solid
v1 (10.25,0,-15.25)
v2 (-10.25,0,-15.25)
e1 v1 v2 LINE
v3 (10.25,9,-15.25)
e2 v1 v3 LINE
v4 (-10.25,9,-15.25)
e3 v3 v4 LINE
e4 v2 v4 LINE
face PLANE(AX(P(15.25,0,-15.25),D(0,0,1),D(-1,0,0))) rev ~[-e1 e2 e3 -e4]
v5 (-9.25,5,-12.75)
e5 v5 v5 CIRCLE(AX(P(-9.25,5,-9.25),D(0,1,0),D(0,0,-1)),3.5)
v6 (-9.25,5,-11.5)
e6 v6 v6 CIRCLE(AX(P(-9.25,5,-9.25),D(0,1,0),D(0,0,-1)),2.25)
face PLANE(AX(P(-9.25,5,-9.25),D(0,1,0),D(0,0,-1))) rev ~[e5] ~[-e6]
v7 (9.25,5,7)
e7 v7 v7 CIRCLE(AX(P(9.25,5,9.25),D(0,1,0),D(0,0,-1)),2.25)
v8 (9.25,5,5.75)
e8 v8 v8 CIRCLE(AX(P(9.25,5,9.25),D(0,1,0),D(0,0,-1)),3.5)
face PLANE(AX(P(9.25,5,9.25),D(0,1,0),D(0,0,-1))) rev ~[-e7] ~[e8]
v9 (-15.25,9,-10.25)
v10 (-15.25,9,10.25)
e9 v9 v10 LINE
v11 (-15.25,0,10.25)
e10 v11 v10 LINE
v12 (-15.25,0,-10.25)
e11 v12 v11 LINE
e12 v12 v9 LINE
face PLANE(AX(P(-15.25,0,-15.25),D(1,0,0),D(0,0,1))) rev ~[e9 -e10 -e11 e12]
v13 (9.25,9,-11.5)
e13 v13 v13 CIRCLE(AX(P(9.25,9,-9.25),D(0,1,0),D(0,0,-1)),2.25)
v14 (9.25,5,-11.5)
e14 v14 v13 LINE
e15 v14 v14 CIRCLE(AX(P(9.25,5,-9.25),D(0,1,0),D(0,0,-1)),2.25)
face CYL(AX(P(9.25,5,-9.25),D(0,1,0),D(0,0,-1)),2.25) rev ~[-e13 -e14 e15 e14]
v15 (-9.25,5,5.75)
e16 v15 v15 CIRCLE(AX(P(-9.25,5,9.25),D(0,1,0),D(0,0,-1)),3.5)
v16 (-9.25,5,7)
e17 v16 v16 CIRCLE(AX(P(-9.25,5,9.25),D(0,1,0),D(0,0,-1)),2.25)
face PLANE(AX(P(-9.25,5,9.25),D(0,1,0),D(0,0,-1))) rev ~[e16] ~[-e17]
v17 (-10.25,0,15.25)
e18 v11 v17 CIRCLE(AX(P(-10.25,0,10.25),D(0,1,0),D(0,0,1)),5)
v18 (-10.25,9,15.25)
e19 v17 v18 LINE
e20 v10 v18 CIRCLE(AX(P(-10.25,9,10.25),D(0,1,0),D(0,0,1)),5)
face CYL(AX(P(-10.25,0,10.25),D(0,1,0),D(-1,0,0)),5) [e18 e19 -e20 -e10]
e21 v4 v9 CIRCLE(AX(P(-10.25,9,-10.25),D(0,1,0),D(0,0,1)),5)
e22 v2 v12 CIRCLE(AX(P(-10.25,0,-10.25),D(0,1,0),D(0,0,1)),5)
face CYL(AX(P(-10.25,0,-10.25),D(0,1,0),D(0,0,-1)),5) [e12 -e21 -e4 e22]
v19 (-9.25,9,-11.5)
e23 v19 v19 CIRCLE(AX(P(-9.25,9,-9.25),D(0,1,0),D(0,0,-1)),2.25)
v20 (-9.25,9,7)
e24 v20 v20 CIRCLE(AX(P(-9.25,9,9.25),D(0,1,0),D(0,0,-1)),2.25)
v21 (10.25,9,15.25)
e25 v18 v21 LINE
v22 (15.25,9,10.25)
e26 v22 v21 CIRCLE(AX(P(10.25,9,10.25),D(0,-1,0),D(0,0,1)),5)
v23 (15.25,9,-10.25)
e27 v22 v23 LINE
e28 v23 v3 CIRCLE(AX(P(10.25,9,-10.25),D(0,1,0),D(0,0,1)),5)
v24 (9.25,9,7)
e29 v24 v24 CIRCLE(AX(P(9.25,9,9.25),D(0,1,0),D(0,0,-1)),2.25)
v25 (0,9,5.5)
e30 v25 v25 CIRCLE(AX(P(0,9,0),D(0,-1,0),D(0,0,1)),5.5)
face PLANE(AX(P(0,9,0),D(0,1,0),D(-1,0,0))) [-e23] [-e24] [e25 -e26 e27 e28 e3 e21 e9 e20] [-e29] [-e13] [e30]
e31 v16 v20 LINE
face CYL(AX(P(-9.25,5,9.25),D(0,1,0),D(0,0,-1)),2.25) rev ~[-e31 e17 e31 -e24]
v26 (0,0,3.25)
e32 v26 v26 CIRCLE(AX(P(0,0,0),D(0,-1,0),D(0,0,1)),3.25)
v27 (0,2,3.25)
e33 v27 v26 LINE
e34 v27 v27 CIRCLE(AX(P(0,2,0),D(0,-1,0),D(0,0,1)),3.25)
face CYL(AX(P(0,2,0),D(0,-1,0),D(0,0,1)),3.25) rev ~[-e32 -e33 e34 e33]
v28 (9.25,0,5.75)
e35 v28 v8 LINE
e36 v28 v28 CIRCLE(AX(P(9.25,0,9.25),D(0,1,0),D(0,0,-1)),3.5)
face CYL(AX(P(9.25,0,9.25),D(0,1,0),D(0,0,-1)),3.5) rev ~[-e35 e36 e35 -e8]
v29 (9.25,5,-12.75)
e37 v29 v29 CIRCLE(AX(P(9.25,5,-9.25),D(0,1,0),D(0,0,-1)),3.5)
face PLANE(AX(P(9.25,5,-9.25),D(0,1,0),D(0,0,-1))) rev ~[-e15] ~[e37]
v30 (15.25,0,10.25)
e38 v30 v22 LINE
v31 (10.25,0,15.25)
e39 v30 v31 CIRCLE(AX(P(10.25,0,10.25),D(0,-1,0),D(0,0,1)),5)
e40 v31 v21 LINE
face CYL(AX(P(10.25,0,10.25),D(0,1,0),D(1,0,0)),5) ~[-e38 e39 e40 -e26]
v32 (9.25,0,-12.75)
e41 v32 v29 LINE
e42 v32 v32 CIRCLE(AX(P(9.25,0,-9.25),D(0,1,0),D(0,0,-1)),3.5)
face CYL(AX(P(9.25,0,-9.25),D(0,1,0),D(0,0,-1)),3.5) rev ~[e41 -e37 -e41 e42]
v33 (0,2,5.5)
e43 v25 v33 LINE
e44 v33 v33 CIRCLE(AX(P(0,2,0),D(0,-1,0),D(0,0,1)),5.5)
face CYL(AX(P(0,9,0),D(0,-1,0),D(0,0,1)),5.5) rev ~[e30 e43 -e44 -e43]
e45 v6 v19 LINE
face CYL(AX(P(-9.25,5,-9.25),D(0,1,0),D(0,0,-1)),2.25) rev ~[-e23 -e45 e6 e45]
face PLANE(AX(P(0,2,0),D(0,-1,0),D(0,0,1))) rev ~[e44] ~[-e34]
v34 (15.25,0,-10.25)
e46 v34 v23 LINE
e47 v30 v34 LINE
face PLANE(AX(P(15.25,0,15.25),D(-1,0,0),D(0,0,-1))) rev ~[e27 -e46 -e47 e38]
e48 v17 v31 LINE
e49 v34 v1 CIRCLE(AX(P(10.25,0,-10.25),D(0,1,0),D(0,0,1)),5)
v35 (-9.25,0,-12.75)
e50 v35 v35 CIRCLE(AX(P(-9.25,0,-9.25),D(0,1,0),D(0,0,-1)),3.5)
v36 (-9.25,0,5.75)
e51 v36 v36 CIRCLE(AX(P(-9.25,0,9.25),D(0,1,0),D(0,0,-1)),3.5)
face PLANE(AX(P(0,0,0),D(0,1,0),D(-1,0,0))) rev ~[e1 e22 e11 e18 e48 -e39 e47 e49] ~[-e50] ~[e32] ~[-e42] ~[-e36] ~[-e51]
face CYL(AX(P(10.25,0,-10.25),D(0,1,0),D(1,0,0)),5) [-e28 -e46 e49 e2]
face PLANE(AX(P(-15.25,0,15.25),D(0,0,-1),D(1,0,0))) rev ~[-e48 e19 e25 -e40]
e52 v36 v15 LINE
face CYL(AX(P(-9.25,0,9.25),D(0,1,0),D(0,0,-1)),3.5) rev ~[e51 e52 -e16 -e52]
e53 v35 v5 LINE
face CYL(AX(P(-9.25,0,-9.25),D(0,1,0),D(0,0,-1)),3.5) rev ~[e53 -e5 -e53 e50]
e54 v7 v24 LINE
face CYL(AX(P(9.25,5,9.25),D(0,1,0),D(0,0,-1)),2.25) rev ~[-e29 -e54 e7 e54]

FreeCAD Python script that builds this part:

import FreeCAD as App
import Part
import Sketcher

V = App.Vector
Q = App.Units.Quantity


def edges_at(feature, points):
    """Names of the edges that pass closest to the given points."""
    edges = feature.Shape.Edges
    near = lambda p: min(range(len(edges)), key=lambda i: edges[i].distToShape(Part.Vertex(*p))[0])
    return sorted({f"Edge{near(p) + 1}" for p in points})


def add_polygon(sketch, points):
    """Adds a closed chain of lines whose ends are joined by coincident constraints."""
    first, n = sketch.GeometryCount, len(points)
    for a, b in zip(points, points[1:] + points[:1]):
        sketch.addGeometry(Part.LineSegment(App.Vector(*a, 0), App.Vector(*b, 0)), False)
    for i in range(n):
        sketch.addConstraint(Sketcher.Constraint("Coincident", first + i, 2, first + (i + 1) % n, 1))

doc = App.newDocument("Part")
params = doc.addObject("Spreadsheet::Sheet", "Params")
for row, (alias, value) in enumerate([
    ("sketch1_width", "30.5 mm"),
    ("pad1_length", "9 mm"),
    ("sketch2_diameter", "6.5 mm"),
    ("hole_diameter", "6.5 mm"),
    ("hole_cbore_diameter", "11 mm"),
    ("hole_cbore_depth", "7 mm"),
    ("fillet_radius", "5 mm"),
    ("fillet2_radius", "5 mm"),
    ("fillet3_radius", "5 mm"),
    ("fillet4_radius", "5 mm"),
    ("sketch3_diameter", "4.5 mm"),
    ("hole2_diameter", "4.5 mm"),
    ("hole2_cbore_diameter", "7 mm"),
    ("hole2_cbore_depth", "5 mm"),
    ("sketch4_diameter", "4.5 mm"),
    ("hole3_diameter", "4.5 mm"),
    ("hole3_cbore_diameter", "7 mm"),
    ("hole3_cbore_depth", "5 mm"),
    ("sketch5_diameter", "4.5 mm"),
    ("hole4_diameter", "4.5 mm"),
    ("hole4_cbore_diameter", "7 mm"),
    ("hole4_cbore_depth", "5 mm"),
    ("sketch6_diameter", "4.5 mm"),
    ("hole5_diameter", "4.5 mm"),
    ("hole5_cbore_diameter", "7 mm"),
    ("hole5_cbore_depth", "5 mm"),
], start=1):
    params.set(f"A{row}", alias)
    params.set(f"B{row}", "=" + value)
    params.setAlias(f"B{row}", alias)

body = doc.addObject("PartDesign::Body", "Body")

sketch1 = doc.addObject("Sketcher::SketchObject", "Sketch")
body.addObject(sketch1)
sketch1.AttachmentSupport = (doc.XZ_Plane, [""])
sketch1.MapMode = "FlatFace"
add_polygon(sketch1, [(15, 15), (15, -15), (-15, -15), (-15, 15)])
sketch1.addConstraint([
    Sketcher.Constraint("Vertical", 0),
    Sketcher.Constraint("Horizontal", 1),
    Sketcher.Constraint("Vertical", 2),
    Sketcher.Constraint("Horizontal", 3),
    Sketcher.Constraint("Symmetric", 0, 2, 2, 2, -1, 1),
    Sketcher.Constraint("Equal", 3, 0),
    Sketcher.Constraint("DistanceX", 1, 2, 1, 1, Q("30.5 mm")),
])
sketch1.setExpression("Constraints[10]", "Params.sketch1_width")
pad1 = doc.addObject("PartDesign::Pad", "Pad")
body.addObject(pad1)
pad1.Profile = sketch1
pad1.setExpression("Length", "Params.pad1_length")
pad1.Reversed = True

sketch2 = doc.addObject("Sketcher::SketchObject", "Sketch001")
body.addObject(sketch2)
sketch2.AttachmentSupport = (doc.XZ_Plane, [""])
sketch2.MapMode = "FlatFace"
sketch2.AttachmentOffset = App.Placement(V(0, 0, -9), App.Rotation())
sketch2.addGeometry(Part.Circle(V(0, 0, 0), V(0, 0, 1), 3.2), False)
sketch2.addConstraint([
    Sketcher.Constraint("Coincident", 0, 3, -1, 1),
    Sketcher.Constraint("Diameter", 0, Q("6.5 mm")),
])
sketch2.setExpression("Constraints[1]", "Params.sketch2_diameter")
doc.recompute()
hole = doc.addObject("PartDesign::Hole", "Hole")
body.addObject(hole)
hole.Profile = sketch2
hole.ThreadType = "None"
hole.setExpression("Diameter", "Params.hole_diameter")
hole.DepthType = "ThroughAll"
hole.HoleCutType = "Counterbore"
hole.setExpression("HoleCutDiameter", "Params.hole_cbore_diameter")
hole.setExpression("HoleCutDepth", "Params.hole_cbore_depth")
hole.Reversed = True
doc.recompute()

fillet = doc.addObject("PartDesign::Fillet", "Fillet")
body.addObject(fillet)
fillet.Base = (hole, edges_at(hole, [(15.25, 4.5, 15.25)]))
fillet.setExpression("Radius", "Params.fillet_radius")
doc.recompute()

fillet2 = doc.addObject("PartDesign::Fillet", "Fillet001")
body.addObject(fillet2)
fillet2.Base = (fillet, edges_at(fillet, [(15.25, 4.5, -15.25)]))
fillet2.setExpression("Radius", "Params.fillet2_radius")
doc.recompute()

fillet3 = doc.addObject("PartDesign::Fillet", "Fillet002")
body.addObject(fillet3)
fillet3.Base = (fillet2, edges_at(fillet2, [(-15.25, 4.5, -15.25)]))
fillet3.setExpression("Radius", "Params.fillet3_radius")
doc.recompute()

fillet4 = doc.addObject("PartDesign::Fillet", "Fillet003")
body.addObject(fillet4)
fillet4.Base = (fillet3, edges_at(fillet3, [(-15.25, 4.5, 15.25)]))
fillet4.setExpression("Radius", "Params.fillet4_radius")

sketch3 = doc.addObject("Sketcher::SketchObject", "Sketch002")
body.addObject(sketch3)
sketch3.AttachmentSupport = (doc.XZ_Plane, [""])
sketch3.MapMode = "FlatFace"
sketch3.addGeometry(Part.Circle(V(-9.2, -9.2, 0), V(0, 0, 1), 2.2), False)
sketch3.addConstraint([
    Sketcher.Constraint("Diameter", 0, Q("4.5 mm")),
    Sketcher.Constraint("DistanceX", 0, 3, -1, 1, Q("9.25 mm")),
    Sketcher.Constraint("DistanceY", 0, 3, -1, 1, Q("9.25 mm")),
])
sketch3.setExpression("Constraints[0]", "Params.sketch3_diameter")
doc.recompute()
hole2 = doc.addObject("PartDesign::Hole", "Hole001")
body.addObject(hole2)
hole2.Profile = sketch3
hole2.ThreadType = "None"
hole2.setExpression("Diameter", "Params.hole2_diameter")
hole2.DepthType = "ThroughAll"
hole2.HoleCutType = "Counterbore"
hole2.setExpression("HoleCutDiameter", "Params.hole2_cbore_diameter")
hole2.setExpression("HoleCutDepth", "Params.hole2_cbore_depth")

sketch4 = doc.addObject("Sketcher::SketchObject", "Sketch003")
body.addObject(sketch4)
sketch4.AttachmentSupport = (doc.XZ_Plane, [""])
sketch4.MapMode = "FlatFace"
sketch4.addGeometry(Part.Circle(V(-9.2, 9.2, 0), V(0, 0, 1), 2.2), False)
sketch4.addConstraint([
    Sketcher.Constraint("Diameter", 0, Q("4.5 mm")),
    Sketcher.Constraint("DistanceX", 0, 3, -1, 1, Q("9.25 mm")),
    Sketcher.Constraint("DistanceY", -1, 1, 0, 3, Q("9.25 mm")),
])
sketch4.setExpression("Constraints[0]", "Params.sketch4_diameter")
doc.recompute()
hole3 = doc.addObject("PartDesign::Hole", "Hole002")
body.addObject(hole3)
hole3.Profile = sketch4
hole3.ThreadType = "None"
hole3.setExpression("Diameter", "Params.hole3_diameter")
hole3.DepthType = "ThroughAll"
hole3.HoleCutType = "Counterbore"
hole3.setExpression("HoleCutDiameter", "Params.hole3_cbore_diameter")
hole3.setExpression("HoleCutDepth", "Params.hole3_cbore_depth")

sketch5 = doc.addObject("Sketcher::SketchObject", "Sketch004")
body.addObject(sketch5)
sketch5.AttachmentSupport = (doc.XZ_Plane, [""])
sketch5.MapMode = "FlatFace"
sketch5.addGeometry(Part.Circle(V(9.2, 9.2, 0), V(0, 0, 1), 2.2), False)
sketch5.addConstraint([
    Sketcher.Constraint("Diameter", 0, Q("4.5 mm")),
    Sketcher.Constraint("DistanceX", -1, 1, 0, 3, Q("9.25 mm")),
    Sketcher.Constraint("DistanceY", -1, 1, 0, 3, Q("9.25 mm")),
])
sketch5.setExpression("Constraints[0]", "Params.sketch5_diameter")
doc.recompute()
hole4 = doc.addObject("PartDesign::Hole", "Hole003")
body.addObject(hole4)
hole4.Profile = sketch5
hole4.ThreadType = "None"
hole4.setExpression("Diameter", "Params.hole4_diameter")
hole4.DepthType = "ThroughAll"
hole4.HoleCutType = "Counterbore"
hole4.setExpression("HoleCutDiameter", "Params.hole4_cbore_diameter")
hole4.setExpression("HoleCutDepth", "Params.hole4_cbore_depth")

sketch6 = doc.addObject("Sketcher::SketchObject", "Sketch005")
body.addObject(sketch6)
sketch6.AttachmentSupport = (doc.XZ_Plane, [""])
sketch6.MapMode = "FlatFace"
sketch6.addGeometry(Part.Circle(V(9.2, -9.2, 0), V(0, 0, 1), 2.2), False)
sketch6.addConstraint([
    Sketcher.Constraint("Diameter", 0, Q("4.5 mm")),
    Sketcher.Constraint("DistanceX", -1, 1, 0, 3, Q("9.25 mm")),
    Sketcher.Constraint("DistanceY", 0, 3, -1, 1, Q("9.25 mm")),
])
sketch6.setExpression("Constraints[0]", "Params.sketch6_diameter")
doc.recompute()
hole5 = doc.addObject("PartDesign::Hole", "Hole004")
body.addObject(hole5)
hole5.Profile = sketch6
hole5.ThreadType = "None"
hole5.setExpression("Diameter", "Params.hole5_diameter")
hole5.DepthType = "ThroughAll"
hole5.HoleCutType = "Counterbore"
hole5.setExpression("HoleCutDiameter", "Params.hole5_cbore_diameter")
hole5.setExpression("HoleCutDepth", "Params.hole5_cbore_depth")

doc.recompute()
